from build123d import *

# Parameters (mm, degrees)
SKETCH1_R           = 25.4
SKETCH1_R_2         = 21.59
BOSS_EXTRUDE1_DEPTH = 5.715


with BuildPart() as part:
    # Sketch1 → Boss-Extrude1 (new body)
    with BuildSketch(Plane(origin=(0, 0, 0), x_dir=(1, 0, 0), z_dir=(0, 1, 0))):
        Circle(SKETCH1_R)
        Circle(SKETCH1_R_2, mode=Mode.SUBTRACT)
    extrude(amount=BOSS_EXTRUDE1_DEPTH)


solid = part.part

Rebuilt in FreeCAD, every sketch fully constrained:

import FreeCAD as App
import Part
import Sketcher

V = App.Vector
Q = App.Units.Quantity

doc = App.newDocument("Part")
body = doc.addObject("PartDesign::Body", "Body")

sketch1 = body.newObject("Sketcher::SketchObject", "Sketch")
sketch1.AttachmentSupport = (doc.getObject("XZ_Plane"), [""])
sketch1.MapMode = "FlatFace"
sketch1.addGeometry([
    Part.Circle(V(0, 0, 0), V(0, 0, 1), 25.4),
    Part.Circle(V(0, 0, 0), V(0, 0, 1), 21.59),
], False)
sketch1.addConstraint([
    Sketcher.Constraint("Coincident", 0, 3, -1, 1),
    Sketcher.Constraint("Coincident", 1, 3, -1, 1),
    Sketcher.Constraint("Diameter", 0, Q("2 in")),
    Sketcher.Constraint("Diameter", 1, Q("1.7 in")),
])
pad1 = body.newObject("PartDesign::Pad", "Pad")
pad1.Profile = sketch1
pad1.Length = Q("0.225 in")
pad1.Reversed = True

doc.recompute()
